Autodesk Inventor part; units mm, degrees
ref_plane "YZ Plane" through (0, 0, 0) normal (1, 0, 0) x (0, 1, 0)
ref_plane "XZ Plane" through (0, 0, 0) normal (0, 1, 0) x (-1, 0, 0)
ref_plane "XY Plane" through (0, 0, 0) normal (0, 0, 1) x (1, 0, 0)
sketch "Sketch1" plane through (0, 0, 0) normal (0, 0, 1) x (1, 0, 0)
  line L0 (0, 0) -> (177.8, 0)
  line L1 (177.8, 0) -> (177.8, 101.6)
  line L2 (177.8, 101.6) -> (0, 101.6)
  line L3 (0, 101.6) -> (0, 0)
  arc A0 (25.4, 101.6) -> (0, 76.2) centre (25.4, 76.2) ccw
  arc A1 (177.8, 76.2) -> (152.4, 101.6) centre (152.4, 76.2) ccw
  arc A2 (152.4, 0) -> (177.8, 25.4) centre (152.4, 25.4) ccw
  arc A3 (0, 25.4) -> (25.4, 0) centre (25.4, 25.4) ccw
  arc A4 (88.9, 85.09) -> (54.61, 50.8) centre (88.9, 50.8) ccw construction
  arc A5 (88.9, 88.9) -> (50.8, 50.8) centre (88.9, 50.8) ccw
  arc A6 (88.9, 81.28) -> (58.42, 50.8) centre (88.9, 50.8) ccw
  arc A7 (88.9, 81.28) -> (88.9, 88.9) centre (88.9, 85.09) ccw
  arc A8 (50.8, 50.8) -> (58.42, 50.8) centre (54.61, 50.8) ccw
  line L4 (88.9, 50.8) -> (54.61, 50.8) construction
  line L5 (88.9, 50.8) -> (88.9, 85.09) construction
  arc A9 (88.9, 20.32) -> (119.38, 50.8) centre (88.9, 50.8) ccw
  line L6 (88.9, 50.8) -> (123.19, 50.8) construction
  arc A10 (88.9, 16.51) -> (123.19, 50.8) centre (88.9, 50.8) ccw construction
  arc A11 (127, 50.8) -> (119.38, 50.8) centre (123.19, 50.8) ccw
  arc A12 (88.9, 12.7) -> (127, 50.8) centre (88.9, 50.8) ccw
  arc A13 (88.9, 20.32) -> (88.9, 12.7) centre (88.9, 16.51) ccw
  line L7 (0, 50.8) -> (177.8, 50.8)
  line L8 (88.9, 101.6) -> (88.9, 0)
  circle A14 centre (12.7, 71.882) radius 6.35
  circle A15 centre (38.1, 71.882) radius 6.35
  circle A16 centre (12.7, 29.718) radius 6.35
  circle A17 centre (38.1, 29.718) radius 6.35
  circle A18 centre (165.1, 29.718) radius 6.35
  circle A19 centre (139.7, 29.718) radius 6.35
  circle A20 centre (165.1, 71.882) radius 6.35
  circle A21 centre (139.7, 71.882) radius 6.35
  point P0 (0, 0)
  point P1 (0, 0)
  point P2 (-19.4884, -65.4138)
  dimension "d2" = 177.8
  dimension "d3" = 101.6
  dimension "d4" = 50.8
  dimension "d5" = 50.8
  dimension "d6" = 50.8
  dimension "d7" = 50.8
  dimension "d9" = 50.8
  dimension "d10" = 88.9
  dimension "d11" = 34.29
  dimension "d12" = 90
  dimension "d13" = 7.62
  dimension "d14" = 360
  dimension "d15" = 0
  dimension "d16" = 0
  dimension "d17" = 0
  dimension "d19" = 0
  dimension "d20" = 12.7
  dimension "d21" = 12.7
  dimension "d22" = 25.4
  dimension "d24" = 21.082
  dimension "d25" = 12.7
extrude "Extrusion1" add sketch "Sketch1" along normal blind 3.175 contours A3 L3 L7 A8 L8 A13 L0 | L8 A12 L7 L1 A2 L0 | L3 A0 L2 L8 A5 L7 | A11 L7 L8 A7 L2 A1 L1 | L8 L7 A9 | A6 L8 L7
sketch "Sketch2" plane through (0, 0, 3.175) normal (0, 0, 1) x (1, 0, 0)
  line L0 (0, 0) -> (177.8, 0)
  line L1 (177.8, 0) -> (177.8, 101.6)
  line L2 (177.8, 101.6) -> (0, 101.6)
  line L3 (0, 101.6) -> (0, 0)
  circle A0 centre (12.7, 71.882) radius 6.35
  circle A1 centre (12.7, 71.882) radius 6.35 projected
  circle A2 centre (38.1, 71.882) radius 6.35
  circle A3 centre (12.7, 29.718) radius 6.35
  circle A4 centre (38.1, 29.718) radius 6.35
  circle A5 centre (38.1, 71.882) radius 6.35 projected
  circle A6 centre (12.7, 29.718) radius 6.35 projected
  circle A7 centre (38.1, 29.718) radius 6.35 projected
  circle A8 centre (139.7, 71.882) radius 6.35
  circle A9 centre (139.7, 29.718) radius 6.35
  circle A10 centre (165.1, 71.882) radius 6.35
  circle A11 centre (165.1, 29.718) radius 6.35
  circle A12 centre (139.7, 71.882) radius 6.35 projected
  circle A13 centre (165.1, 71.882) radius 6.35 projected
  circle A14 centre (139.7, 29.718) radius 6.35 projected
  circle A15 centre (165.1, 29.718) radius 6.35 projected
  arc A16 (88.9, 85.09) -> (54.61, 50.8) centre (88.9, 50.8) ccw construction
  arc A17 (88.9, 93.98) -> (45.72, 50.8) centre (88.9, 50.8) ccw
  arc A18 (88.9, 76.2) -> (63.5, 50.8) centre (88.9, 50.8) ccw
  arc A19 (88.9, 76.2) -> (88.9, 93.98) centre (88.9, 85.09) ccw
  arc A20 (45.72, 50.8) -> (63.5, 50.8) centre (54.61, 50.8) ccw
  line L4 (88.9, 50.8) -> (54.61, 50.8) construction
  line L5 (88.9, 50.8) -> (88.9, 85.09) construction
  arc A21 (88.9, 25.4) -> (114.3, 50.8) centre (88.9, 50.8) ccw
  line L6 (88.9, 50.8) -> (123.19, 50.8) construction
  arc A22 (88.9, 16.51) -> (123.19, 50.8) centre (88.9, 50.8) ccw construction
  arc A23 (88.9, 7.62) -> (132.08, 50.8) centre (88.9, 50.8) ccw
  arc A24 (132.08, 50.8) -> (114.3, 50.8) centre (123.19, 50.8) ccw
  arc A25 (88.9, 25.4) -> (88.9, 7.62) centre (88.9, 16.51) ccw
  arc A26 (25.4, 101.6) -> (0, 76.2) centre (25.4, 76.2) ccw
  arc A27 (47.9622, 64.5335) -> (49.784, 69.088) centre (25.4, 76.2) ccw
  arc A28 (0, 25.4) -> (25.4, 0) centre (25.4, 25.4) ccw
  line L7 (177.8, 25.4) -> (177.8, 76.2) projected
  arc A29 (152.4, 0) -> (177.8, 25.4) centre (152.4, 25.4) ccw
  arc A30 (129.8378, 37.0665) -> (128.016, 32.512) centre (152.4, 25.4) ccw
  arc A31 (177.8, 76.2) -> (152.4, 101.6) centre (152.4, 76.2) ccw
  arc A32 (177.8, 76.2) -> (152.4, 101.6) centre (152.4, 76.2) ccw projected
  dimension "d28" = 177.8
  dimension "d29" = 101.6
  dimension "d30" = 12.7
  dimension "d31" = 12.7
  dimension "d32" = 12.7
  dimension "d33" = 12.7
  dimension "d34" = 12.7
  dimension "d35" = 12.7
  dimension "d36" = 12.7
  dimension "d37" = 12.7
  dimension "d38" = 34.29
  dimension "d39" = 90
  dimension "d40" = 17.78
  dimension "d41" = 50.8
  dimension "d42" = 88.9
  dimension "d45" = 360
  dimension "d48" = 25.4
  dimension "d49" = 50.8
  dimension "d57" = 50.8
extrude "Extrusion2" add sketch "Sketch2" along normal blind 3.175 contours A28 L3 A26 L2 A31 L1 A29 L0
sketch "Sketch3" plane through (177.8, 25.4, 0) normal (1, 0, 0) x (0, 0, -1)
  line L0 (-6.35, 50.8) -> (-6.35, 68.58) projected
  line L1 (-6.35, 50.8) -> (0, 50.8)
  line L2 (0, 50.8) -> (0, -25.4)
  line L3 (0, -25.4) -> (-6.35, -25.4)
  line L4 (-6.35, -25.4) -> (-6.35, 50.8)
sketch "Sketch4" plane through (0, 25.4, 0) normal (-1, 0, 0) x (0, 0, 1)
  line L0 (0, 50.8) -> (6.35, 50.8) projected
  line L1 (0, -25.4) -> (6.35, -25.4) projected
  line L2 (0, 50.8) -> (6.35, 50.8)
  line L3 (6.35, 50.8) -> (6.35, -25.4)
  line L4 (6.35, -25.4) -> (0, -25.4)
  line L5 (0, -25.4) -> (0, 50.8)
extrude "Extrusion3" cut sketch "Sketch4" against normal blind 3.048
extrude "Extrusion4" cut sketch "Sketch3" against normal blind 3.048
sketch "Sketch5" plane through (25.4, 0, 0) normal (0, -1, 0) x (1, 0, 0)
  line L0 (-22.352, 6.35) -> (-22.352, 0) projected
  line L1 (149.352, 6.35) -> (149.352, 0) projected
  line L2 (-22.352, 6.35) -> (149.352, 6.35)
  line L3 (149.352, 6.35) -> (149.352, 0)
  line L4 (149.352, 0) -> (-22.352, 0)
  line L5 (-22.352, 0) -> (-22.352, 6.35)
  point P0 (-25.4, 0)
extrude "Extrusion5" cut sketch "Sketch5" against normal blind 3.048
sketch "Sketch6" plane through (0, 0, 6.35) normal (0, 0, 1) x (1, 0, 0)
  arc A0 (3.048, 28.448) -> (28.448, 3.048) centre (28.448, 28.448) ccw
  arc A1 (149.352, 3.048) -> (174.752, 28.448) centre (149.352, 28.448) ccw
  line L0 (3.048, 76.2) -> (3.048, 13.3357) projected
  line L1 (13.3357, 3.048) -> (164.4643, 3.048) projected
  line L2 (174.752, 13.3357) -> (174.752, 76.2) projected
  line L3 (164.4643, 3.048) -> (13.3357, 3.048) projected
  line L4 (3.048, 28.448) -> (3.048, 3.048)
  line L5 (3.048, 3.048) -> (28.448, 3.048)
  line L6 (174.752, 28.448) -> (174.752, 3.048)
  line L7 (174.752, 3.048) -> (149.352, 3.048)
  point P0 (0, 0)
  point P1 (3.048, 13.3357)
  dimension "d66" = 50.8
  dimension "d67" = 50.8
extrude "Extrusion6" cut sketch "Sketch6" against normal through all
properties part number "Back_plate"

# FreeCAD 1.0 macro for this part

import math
import FreeCAD as App
import Part
import Sketcher

V = App.Vector
Q = App.Units.Quantity


def add_polygon(sketch, points):
    """Adds a closed chain of lines whose ends are joined by coincident constraints."""
    first, n = sketch.GeometryCount, len(points)
    for a, b in zip(points, points[1:] + points[:1]):
        sketch.addGeometry(Part.LineSegment(App.Vector(*a, 0), App.Vector(*b, 0)), False)
    for i in range(n):
        sketch.addConstraint(Sketcher.Constraint("Coincident", first + i, 2, first + (i + 1) % n, 1))

doc = App.newDocument("Part")
body = doc.addObject("PartDesign::Body", "Body")

# Sketch on XY plane
sketch1 = doc.addObject("Sketcher::SketchObject", "Sketch")
body.addObject(sketch1)
sketch1.AttachmentSupport = (doc.XY_Plane, [""])
sketch1.MapMode = "FlatFace"
sketch1.addGeometry(Part.ArcOfCircle(Part.Circle(V(25.4, 25.4, 0), V(0, 0, 1), 25.4), math.radians(180), math.radians(270)), False)
sketch1.addGeometry(Part.LineSegment(V(25.4, 0, 0), V(152.4, 0, 0)), False)
sketch1.addGeometry(Part.ArcOfCircle(Part.Circle(V(152.4, 25.4, 0), V(0, 0, 1), 25.4), math.radians(-90), math.radians(0)), False)
sketch1.addGeometry(Part.LineSegment(V(177.8, 25.4, 0), V(177.8, 76.2, 0)), False)
sketch1.addGeometry(Part.ArcOfCircle(Part.Circle(V(152.4, 76.2, 0), V(0, 0, 1), 25.4), math.radians(0), math.radians(90)), False)
sketch1.addGeometry(Part.LineSegment(V(152.4, 101.6, 0), V(25.4, 101.6, 0)), False)
sketch1.addGeometry(Part.ArcOfCircle(Part.Circle(V(25.4, 76.2, 0), V(0, 0, 1), 25.4), math.radians(90), math.radians(180)), False)
sketch1.addGeometry(Part.LineSegment(V(0, 76.2, 0), V(0, 25.4, 0)), False)
sketch1.addGeometry(Part.ArcOfCircle(Part.Circle(V(54.6, 50.8, 0), V(0, 0, 1), 3.8), math.radians(180), math.radians(360)), False)
sketch1.addGeometry(Part.ArcOfCircle(Part.Circle(V(88.9, 50.8, 0), V(0, 0, 1), 38.1), math.radians(90), math.radians(180)), False)
sketch1.addGeometry(Part.ArcOfCircle(Part.Circle(V(88.9, 85.1, 0), V(0, 0, 1), 3.8), math.radians(-90), math.radians(90)), False)
sketch1.addGeometry(Part.ArcOfCircle(Part.Circle(V(88.9, 50.8, 0), V(0, 0, 1), 30.5), math.radians(90), math.radians(180)), False)
sketch1.addGeometry(Part.ArcOfCircle(Part.Circle(V(88.9, 16.5, 0), V(0, 0, 1), 3.8), math.radians(90), math.radians(270)), False)
sketch1.addGeometry(Part.ArcOfCircle(Part.Circle(V(88.9, 50.8, 0), V(0, 0, 1), 30.5), math.radians(-90), math.radians(0)), False)
sketch1.addGeometry(Part.ArcOfCircle(Part.Circle(V(123.2, 50.8, 0), V(0, 0, 1), 3.8), math.radians(0), math.radians(180)), False)
sketch1.addGeometry(Part.ArcOfCircle(Part.Circle(V(88.9, 50.8, 0), V(0, 0, 1), 38.1), math.radians(-90), math.radians(0)), False)
sketch1.addGeometry(Part.Circle(V(12.7, 29.7, 0), V(0, 0, 1), 6.3), False)
sketch1.addGeometry(Part.Circle(V(38.1, 29.7, 0), V(0, 0, 1), 6.3), False)
sketch1.addGeometry(Part.Circle(V(38.1, 71.9, 0), V(0, 0, 1), 6.3), False)
sketch1.addGeometry(Part.Circle(V(12.7, 71.9, 0), V(0, 0, 1), 6.3), False)
sketch1.addGeometry(Part.Circle(V(165.1, 29.7, 0), V(0, 0, 1), 6.3), False)
sketch1.addGeometry(Part.Circle(V(139.7, 29.7, 0), V(0, 0, 1), 6.3), False)
sketch1.addGeometry(Part.Circle(V(139.7, 71.9, 0), V(0, 0, 1), 6.3), False)
sketch1.addGeometry(Part.Circle(V(165.1, 71.9, 0), V(0, 0, 1), 6.3), False)
sketch1.addConstraint(Sketcher.Constraint("Tangent", 0, 2, 1, 1))
sketch1.addConstraint(Sketcher.Constraint("Tangent", 1, 2, 2, 1))
sketch1.addConstraint(Sketcher.Constraint("Tangent", 2, 2, 3, 1))
sketch1.addConstraint(Sketcher.Constraint("Tangent", 3, 2, 4, 1))
sketch1.addConstraint(Sketcher.Constraint("Tangent", 4, 2, 5, 1))
sketch1.addConstraint(Sketcher.Constraint("Tangent", 5, 2, 6, 1))
sketch1.addConstraint(Sketcher.Constraint("Tangent", 6, 2, 7, 1))
sketch1.addConstraint(Sketcher.Constraint("Tangent", 7, 2, 0, 1))
sketch1.addConstraint(Sketcher.Constraint("Tangent", 8, 1, 9, 2))
sketch1.addConstraint(Sketcher.Constraint("Tangent", 9, 1, 10, 2))
sketch1.addConstraint(Sketcher.Constraint("Tangent", 10, 1, 11, 1))
sketch1.addConstraint(Sketcher.Constraint("Tangent", 11, 2, 8, 2))
sketch1.addConstraint(Sketcher.Constraint("Tangent", 12, 1, 13, 1))
sketch1.addConstraint(Sketcher.Constraint("Tangent", 13, 2, 14, 2))
sketch1.addConstraint(Sketcher.Constraint("Tangent", 14, 1, 15, 2))
sketch1.addConstraint(Sketcher.Constraint("Tangent", 15, 1, 12, 2))
sketch1.addConstraint(Sketcher.Constraint("Horizontal", 1))
sketch1.addConstraint(Sketcher.Constraint("Vertical", 3))
sketch1.addConstraint(Sketcher.Constraint("Horizontal", 5))
sketch1.addConstraint(Sketcher.Constraint("Vertical", 7))
sketch1.addConstraint(Sketcher.Constraint("Coincident", 11, 3, 9, 3))
sketch1.addConstraint(Sketcher.Constraint("Coincident", 13, 3, 9, 3))
sketch1.addConstraint(Sketcher.Constraint("Coincident", 15, 3, 9, 3))
sketch1.addConstraint(Sketcher.Constraint("Equal", 0, 2))
sketch1.addConstraint(Sketcher.Constraint("Equal", 2, 4))
sketch1.addConstraint(Sketcher.Constraint("Equal", 4, 6))
sketch1.addConstraint(Sketcher.Constraint("Equal", 10, 12))
sketch1.addConstraint(Sketcher.Constraint("Equal", 11, 13))
sketch1.addConstraint(Sketcher.Constraint("Equal", 16, 17))
sketch1.addConstraint(Sketcher.Constraint("Equal", 17, 18))
sketch1.addConstraint(Sketcher.Constraint("Equal", 18, 19))
sketch1.addConstraint(Sketcher.Constraint("Equal", 19, 20))
sketch1.addConstraint(Sketcher.Constraint("Equal", 20, 21))
sketch1.addConstraint(Sketcher.Constraint("Equal", 21, 22))
sketch1.addConstraint(Sketcher.Constraint("Equal", 22, 23))
sketch1.addConstraint(Sketcher.Constraint("PointOnObject", 0, 2, -1))
sketch1.addConstraint(Sketcher.Constraint("PointOnObject", 6, 2, -2))
sketch1.addConstraint(Sketcher.Constraint("Horizontal", 8, 3, 9, 3))
sketch1.addConstraint(Sketcher.Constraint("Horizontal", 13, 3, 14, 3))
sketch1.addConstraint(Sketcher.Constraint("Horizontal", 16, 3, 17, 3))
sketch1.addConstraint(Sketcher.Constraint("Horizontal", 18, 3, 19, 3))
sketch1.addConstraint(Sketcher.Constraint("Horizontal", 17, 3, 20, 3))
sketch1.addConstraint(Sketcher.Constraint("Horizontal", 20, 3, 21, 3))
sketch1.addConstraint(Sketcher.Constraint("Horizontal", 19, 3, 22, 3))
sketch1.addConstraint(Sketcher.Constraint("Horizontal", 22, 3, 23, 3))
sketch1.addConstraint(Sketcher.Constraint("Vertical", 9, 3, 10, 3))
sketch1.addConstraint(Sketcher.Constraint("Vertical", 11, 3, 12, 3))
sketch1.addConstraint(Sketcher.Constraint("Vertical", 17, 3, 18, 3))
sketch1.addConstraint(Sketcher.Constraint("Vertical", 16, 3, 19, 3))
sketch1.addConstraint(Sketcher.Constraint("Vertical", 21, 3, 22, 3))
sketch1.addConstraint(Sketcher.Constraint("Vertical", 20, 3, 23, 3))
sketch1.addConstraint(Sketcher.Constraint("Radius", 0, Q("1 in")))
sketch1.addConstraint(Sketcher.Constraint("Diameter", 16, Q("0.5 in")))
sketch1.addConstraint(Sketcher.Constraint("DistanceY", 3, 1, 3, 2, Q("2 in")))
sketch1.addConstraint(Sketcher.Constraint("Radius", 8, Q("0.15 in")))
sketch1.addConstraint(Sketcher.Constraint("DistanceY", -1, 1, 8, 3, Q("2 in")))
sketch1.addConstraint(Sketcher.Constraint("DistanceX", -1, 1, 2, 2, Q("7 in")))
sketch1.addConstraint(Sketcher.Constraint("DistanceX", -1, 1, 8, 1, Q("2 in")))
sketch1.addConstraint(Sketcher.Constraint("DistanceX", 16, 3, 17, 3, Q("1 in")))
sketch1.addConstraint(Sketcher.Constraint("DistanceX", 17, 3, 12, 3, Q("2 in")))
sketch1.addConstraint(Sketcher.Constraint("DistanceX", 21, 3, 20, 3, Q("1 in")))
sketch1.addConstraint(Sketcher.Constraint("DistanceX", 12, 3, 21, 3, Q("2 in")))
sketch1.addConstraint(Sketcher.Constraint("DistanceX", 14, 1, 2, 3, Q("1 in")))
sketch1.addConstraint(Sketcher.Constraint("DistanceY", 16, 3, 8, 3, Q("0.83 in")))
sketch1.addConstraint(Sketcher.Constraint("DistanceY", 8, 3, 18, 3, Q("0.83 in")))
pad1 = doc.addObject("PartDesign::Pad", "Pad")
body.addObject(pad1)
pad1.Profile = sketch1
pad1.Length = Q("0.125 in")

# Sketch on XY plane
sketch2 = doc.addObject("Sketcher::SketchObject", "Sketch001")
body.addObject(sketch2)
sketch2.AttachmentSupport = (doc.XY_Plane, [""])
sketch2.MapMode = "FlatFace"
sketch2.AttachmentOffset = App.Placement(V(0, 0, 0.125 * 25.4), App.Rotation())
sketch2.addGeometry(Part.ArcOfCircle(Part.Circle(V(25, 25, 0), V(0, 0, 1), 25), math.radians(180), math.radians(270)), False)
sketch2.addGeometry(Part.LineSegment(V(25, 0, 0), V(152, 0, 0)), False)
sketch2.addGeometry(Part.ArcOfCircle(Part.Circle(V(152, 25, 0), V(0, 0, 1), 25), math.radians(-90), math.radians(0)), False)
sketch2.addGeometry(Part.LineSegment(V(178, 25, 0), V(178, 76, 0)), False)
sketch2.addGeometry(Part.ArcOfCircle(Part.Circle(V(152, 76, 0), V(0, 0, 1), 25), math.radians(0), math.radians(90)), False)
sketch2.addGeometry(Part.LineSegment(V(152, 102, 0), V(25, 102, 0)), False)
sketch2.addGeometry(Part.ArcOfCircle(Part.Circle(V(25, 76, 0), V(0, 0, 1), 25), math.radians(90), math.radians(180)), False)
sketch2.addGeometry(Part.LineSegment(V(0, 76, 0), V(0, 25, 0)), False)
sketch2.addGeometry(Part.Circle(V(13, 30, 0), V(0, 0, 1), 6), False)
sketch2.addGeometry(Part.Circle(V(38, 30, 0), V(0, 0, 1), 6), False)
sketch2.addGeometry(Part.ArcOfCircle(Part.Circle(V(89, 17, 0), V(0, 0, 1), 9), math.radians(90), math.radians(270)), False)
sketch2.addGeometry(Part.ArcOfCircle(Part.Circle(V(89, 51, 0), V(0, 0, 1), 25), math.radians(-90), math.radians(0)), False)
sketch2.addGeometry(Part.ArcOfCircle(Part.Circle(V(123, 51, 0), V(0, 0, 1), 9), math.radians(0), math.radians(180)), False)
sketch2.addGeometry(Part.ArcOfCircle(Part.Circle(V(89, 51, 0), V(0, 0, 1), 43), math.radians(-90), math.radians(0)), False)
sketch2.addGeometry(Part.Circle(V(140, 30, 0), V(0, 0, 1), 6), False)
sketch2.addGeometry(Part.Circle(V(165, 30, 0), V(0, 0, 1), 6), False)
sketch2.addGeometry(Part.Circle(V(13, 72, 0), V(0, 0, 1), 6), False)
sketch2.addGeometry(Part.Circle(V(38, 72, 0), V(0, 0, 1), 6), False)
sketch2.addGeometry(Part.ArcOfCircle(Part.Circle(V(89, 51, 0), V(0, 0, 1), 43), math.radians(90), math.radians(180)), False)
sketch2.addGeometry(Part.ArcOfCircle(Part.Circle(V(89, 85, 0), V(0, 0, 1), 9), math.radians(-90), math.radians(90)), False)
sketch2.addGeometry(Part.ArcOfCircle(Part.Circle(V(89, 51, 0), V(0, 0, 1), 25), math.radians(90), math.radians(180)), False)
sketch2.addGeometry(Part.ArcOfCircle(Part.Circle(V(55, 51, 0), V(0, 0, 1), 9), math.radians(180), math.radians(360)), False)
sketch2.addGeometry(Part.Circle(V(140, 72, 0), V(0, 0, 1), 6), False)
sketch2.addGeometry(Part.Circle(V(165, 72, 0), V(0, 0, 1), 6), False)
sketch2.addConstraint(Sketcher.Constraint("Tangent", 0, 2, 1, 1))
sketch2.addConstraint(Sketcher.Constraint("Tangent", 1, 2, 2, 1))
sketch2.addConstraint(Sketcher.Constraint("Tangent", 2, 2, 3, 1))
sketch2.addConstraint(Sketcher.Constraint("Tangent", 3, 2, 4, 1))
sketch2.addConstraint(Sketcher.Constraint("Tangent", 4, 2, 5, 1))
sketch2.addConstraint(Sketcher.Constraint("Tangent", 5, 2, 6, 1))
sketch2.addConstraint(Sketcher.Constraint("Tangent", 6, 2, 7, 1))
sketch2.addConstraint(Sketcher.Constraint("Tangent", 7, 2, 0, 1))
sketch2.addConstraint(Sketcher.Constraint("Tangent", 10, 1, 11, 1))
sketch2.addConstraint(Sketcher.Constraint("Tangent", 11, 2, 12, 2))
sketch2.addConstraint(Sketcher.Constraint("Tangent", 12, 1, 13, 2))
sketch2.addConstraint(Sketcher.Constraint("Tangent", 13, 1, 10, 2))
sketch2.addConstraint(Sketcher.Constraint("Tangent", 18, 1, 19, 2))
sketch2.addConstraint(Sketcher.Constraint("Tangent", 19, 1, 20, 1))
sketch2.addConstraint(Sketcher.Constraint("Tangent", 20, 2, 21, 2))
sketch2.addConstraint(Sketcher.Constraint("Tangent", 21, 1, 18, 2))
sketch2.addConstraint(Sketcher.Constraint("Horizontal", 1))
sketch2.addConstraint(Sketcher.Constraint("Vertical", 3))
sketch2.addConstraint(Sketcher.Constraint("Horizontal", 5))
sketch2.addConstraint(Sketcher.Constraint("Vertical", 7))
sketch2.addConstraint(Sketcher.Constraint("Coincident", 13, 3, 11, 3))
sketch2.addConstraint(Sketcher.Constraint("Coincident", 18, 3, 11, 3))
sketch2.addConstraint(Sketcher.Constraint("Coincident", 20, 3, 11, 3))
sketch2.addConstraint(Sketcher.Constraint("Equal", 0, 2))
sketch2.addConstraint(Sketcher.Constraint("Equal", 2, 4))
sketch2.addConstraint(Sketcher.Constraint("Equal", 4, 6))
sketch2.addConstraint(Sketcher.Constraint("Equal", 8, 9))
sketch2.addConstraint(Sketcher.Constraint("Equal", 6, 11))
sketch2.addConstraint(Sketcher.Constraint("Equal", 9, 14))
sketch2.addConstraint(Sketcher.Constraint("Equal", 14, 15))
sketch2.addConstraint(Sketcher.Constraint("Equal", 15, 16))
sketch2.addConstraint(Sketcher.Constraint("Equal", 16, 17))
sketch2.addConstraint(Sketcher.Constraint("Equal", 13, 18))
sketch2.addConstraint(Sketcher.Constraint("Equal", 12, 19))
sketch2.addConstraint(Sketcher.Constraint("Equal", 17, 22))
sketch2.addConstraint(Sketcher.Constraint("Equal", 22, 23))
sketch2.addConstraint(Sketcher.Constraint("PointOnObject", 0, 2, -1))
sketch2.addConstraint(Sketcher.Constraint("PointOnObject", 6, 2, -2))
sketch2.addConstraint(Sketcher.Constraint("Horizontal", 8, 3, 9, 3))
sketch2.addConstraint(Sketcher.Constraint("Horizontal", 11, 3, 12, 3))
sketch2.addConstraint(Sketcher.Constraint("Horizontal", 9, 3, 14, 3))
sketch2.addConstraint(Sketcher.Constraint("Horizontal", 14, 3, 15, 3))
sketch2.addConstraint(Sketcher.Constraint("Horizontal", 16, 3, 17, 3))
sketch2.addConstraint(Sketcher.Constraint("Horizontal", 20, 3, 21, 3))
sketch2.addConstraint(Sketcher.Constraint("Horizontal", 17, 3, 22, 3))
sketch2.addConstraint(Sketcher.Constraint("Horizontal", 22, 3, 23, 3))
sketch2.addConstraint(Sketcher.Constraint("Horizontal", 7, 2, 10, 1))
sketch2.addConstraint(Sketcher.Constraint("Horizontal", 6, 2, 19, 1))
sketch2.addConstraint(Sketcher.Constraint("Vertical", 10, 3, 11, 3))
sketch2.addConstraint(Sketcher.Constraint("Vertical", 8, 3, 16, 3))
sketch2.addConstraint(Sketcher.Constraint("Vertical", 9, 3, 17, 3))
sketch2.addConstraint(Sketcher.Constraint("Vertical", 18, 3, 19, 3))
sketch2.addConstraint(Sketcher.Constraint("Vertical", 14, 3, 22, 3))
sketch2.addConstraint(Sketcher.Constraint("Vertical", 15, 3, 23, 3))
sketch2.addConstraint(Sketcher.Constraint("Radius", 0, Q("1 in")))
sketch2.addConstraint(Sketcher.Constraint("Diameter", 8, Q("0.5 in")))
sketch2.addConstraint(Sketcher.Constraint("Radius", 10, Q("0.35 in")))
sketch2.addConstraint(Sketcher.Constraint("DistanceX", -1, 1, 2, 2, Q("7 in")))
sketch2.addConstraint(Sketcher.Constraint("DistanceX", 8, 3, 9, 3, Q("1 in")))
sketch2.addConstraint(Sketcher.Constraint("DistanceX", 9, 3, 10, 3, Q("2 in")))
sketch2.addConstraint(Sketcher.Constraint("DistanceX", 10, 3, 14, 3, Q("2 in")))
sketch2.addConstraint(Sketcher.Constraint("DistanceX", 14, 3, 15, 3, Q("1 in")))
sketch2.addConstraint(Sketcher.Constraint("DistanceX", -1, 1, 8, 3, Q("0.5 in")))
sketch2.addConstraint(Sketcher.Constraint("DistanceY", -1, 1, 8, 3, Q("1.17 in")))
sketch2.addConstraint(Sketcher.Constraint("DistanceY", -1, 1, 16, 3, Q("2.83 in")))
pad2 = doc.addObject("PartDesign::Pad", "Pad001")
body.addObject(pad2)
pad2.Profile = sketch2
pad2.Length = Q("0.125 in")

# Sketch on YZ plane
sketch3 = doc.addObject("Sketcher::SketchObject", "Sketch002")
body.addObject(sketch3)
sketch3.AttachmentSupport = (doc.YZ_Plane, [""])
sketch3.MapMode = "FlatFace"
add_polygon(sketch3, [(76, 6), (76, 0), (0, 0), (0, 6)])  # lines 0-3
sketch3.addConstraint(Sketcher.Constraint("Vertical", 0))
sketch3.addConstraint(Sketcher.Constraint("Horizontal", 1))
sketch3.addConstraint(Sketcher.Constraint("Vertical", 2))
sketch3.addConstraint(Sketcher.Constraint("Horizontal", 3))
sketch3.addConstraint(Sketcher.Constraint("Coincident", 1, 2, -1, 1))
sketch3.addConstraint(Sketcher.Constraint("DistanceX", 1, 2, 1, 1, Q("3 in")))
sketch3.addConstraint(Sketcher.Constraint("DistanceY", 0, 2, 0, 1, Q("0.25 in")))
pocket1 = doc.addObject("PartDesign::Pocket", "Pocket")
body.addObject(pocket1)
pocket1.Profile = sketch3
pocket1.Length = Q("0.12 in")
pocket1.Reversed = True

# Sketch on YZ plane
sketch4 = doc.addObject("Sketcher::SketchObject", "Sketch003")
body.addObject(sketch4)
sketch4.AttachmentSupport = (doc.YZ_Plane, [""])
sketch4.MapMode = "FlatFace"
sketch4.AttachmentOffset = App.Placement(V(0, 0, 7 * 25.4), App.Rotation())
add_polygon(sketch4, [(76, 0), (76, 6), (0, 6), (0, 0)])  # lines 0-3
sketch4.addConstraint(Sketcher.Constraint("Vertical", 0))
sketch4.addConstraint(Sketcher.Constraint("Horizontal", 1))
sketch4.addConstraint(Sketcher.Constraint("Vertical", 2))
sketch4.addConstraint(Sketcher.Constraint("Horizontal", 3))
sketch4.addConstraint(Sketcher.Constraint("Coincident", 2, 2, -1, 1))
sketch4.addConstraint(Sketcher.Constraint("DistanceX", 1, 2, 1, 1, Q("3 in")))
sketch4.addConstraint(Sketcher.Constraint("DistanceY", 0, 1, 0, 2, Q("0.25 in")))
pocket2 = doc.addObject("PartDesign::Pocket", "Pocket001")
body.addObject(pocket2)
pocket2.Profile = sketch4
pocket2.Length = Q("0.12 in")

# Sketch on XZ plane
sketch5 = doc.addObject("Sketcher::SketchObject", "Sketch004")
body.addObject(sketch5)
sketch5.AttachmentSupport = (doc.XZ_Plane, [""])
sketch5.MapMode = "FlatFace"
add_polygon(sketch5, [(175, 6), (3, 6), (3, 0), (175, 0)])  # lines 0-3
sketch5.addConstraint(Sketcher.Constraint("Horizontal", 0))
sketch5.addConstraint(Sketcher.Constraint("Vertical", 1))
sketch5.addConstraint(Sketcher.Constraint("Horizontal", 2))
sketch5.addConstraint(Sketcher.Constraint("Vertical", 3))
sketch5.addConstraint(Sketcher.Constraint("PointOnObject", 1, 2, -1))
sketch5.addConstraint(Sketcher.Constraint("DistanceX", 0, 2, 0, 1, Q("6.76 in")))
sketch5.addConstraint(Sketcher.Constraint("DistanceY", 1, 2, 1, 1, Q("0.25 in")))
sketch5.addConstraint(Sketcher.Constraint("DistanceX", -1, 1, 0, 2, Q("0.12 in")))
pocket3 = doc.addObject("PartDesign::Pocket", "Pocket002")
body.addObject(pocket3)
pocket3.Profile = sketch5
pocket3.Length = Q("0.12 in")

# Sketch on XY plane
sketch6 = doc.addObject("Sketcher::SketchObject", "Sketch005")
body.addObject(sketch6)
sketch6.AttachmentSupport = (doc.XY_Plane, [""])
sketch6.MapMode = "FlatFace"
sketch6.AttachmentOffset = App.Placement(V(0, 0, 0.25 * 25.4), App.Rotation())
sketch6.addGeometry(Part.ArcOfCircle(Part.Circle(V(149, 28, 0), V(0, 0, 1), 25), math.radians(-90), math.radians(0)), False)
sketch6.addGeometry(Part.LineSegment(V(149, 3, 0), V(175, 3, 0)), False)
sketch6.addGeometry(Part.LineSegment(V(175, 3, 0), V(175, 28, 0)), False)
sketch6.addGeometry(Part.ArcOfCircle(Part.Circle(V(28, 28, 0), V(0, 0, 1), 25), math.radians(180), math.radians(270)), False)
sketch6.addGeometry(Part.LineSegment(V(3, 28, 0), V(3, 3, 0)), False)
sketch6.addGeometry(Part.LineSegment(V(3, 3, 0), V(28, 3, 0)), False)
sketch6.addConstraint(Sketcher.Constraint("Tangent", 0, 1, 1, 1))
sketch6.addConstraint(Sketcher.Constraint("Coincident", 1, 2, 2, 1))
sketch6.addConstraint(Sketcher.Constraint("Tangent", 2, 2, 0, 2))
sketch6.addConstraint(Sketcher.Constraint("Tangent", 3, 1, 4, 1))
sketch6.addConstraint(Sketcher.Constraint("Coincident", 4, 2, 5, 1))
sketch6.addConstraint(Sketcher.Constraint("Tangent", 5, 2, 3, 2))
sketch6.addConstraint(Sketcher.Constraint("Horizontal", 1))
sketch6.addConstraint(Sketcher.Constraint("Vertical", 2))
sketch6.addConstraint(Sketcher.Constraint("Vertical", 4))
sketch6.addConstraint(Sketcher.Constraint("Horizontal", 5))
sketch6.addConstraint(Sketcher.Constraint("Equal", 0, 3))
sketch6.addConstraint(Sketcher.Constraint("Horizontal", 0, 3, 3, 3))
sketch6.addConstraint(Sketcher.Constraint("Radius", 0, Q("1 in")))
sketch6.addConstraint(Sketcher.Constraint("DistanceX", -1, 1, 0, 3, Q("5.88 in")))
sketch6.addConstraint(Sketcher.Constraint("DistanceY", -1, 1, 0, 3, Q("1.12 in")))
sketch6.addConstraint(Sketcher.Constraint("DistanceX", -1, 1, 3, 3, Q("1.12 in")))
pocket4 = doc.addObject("PartDesign::Pocket", "Pocket003")
body.addObject(pocket4)
pocket4.Profile = sketch6
pocket4.Type = "ThroughAll"

doc.recompute()
